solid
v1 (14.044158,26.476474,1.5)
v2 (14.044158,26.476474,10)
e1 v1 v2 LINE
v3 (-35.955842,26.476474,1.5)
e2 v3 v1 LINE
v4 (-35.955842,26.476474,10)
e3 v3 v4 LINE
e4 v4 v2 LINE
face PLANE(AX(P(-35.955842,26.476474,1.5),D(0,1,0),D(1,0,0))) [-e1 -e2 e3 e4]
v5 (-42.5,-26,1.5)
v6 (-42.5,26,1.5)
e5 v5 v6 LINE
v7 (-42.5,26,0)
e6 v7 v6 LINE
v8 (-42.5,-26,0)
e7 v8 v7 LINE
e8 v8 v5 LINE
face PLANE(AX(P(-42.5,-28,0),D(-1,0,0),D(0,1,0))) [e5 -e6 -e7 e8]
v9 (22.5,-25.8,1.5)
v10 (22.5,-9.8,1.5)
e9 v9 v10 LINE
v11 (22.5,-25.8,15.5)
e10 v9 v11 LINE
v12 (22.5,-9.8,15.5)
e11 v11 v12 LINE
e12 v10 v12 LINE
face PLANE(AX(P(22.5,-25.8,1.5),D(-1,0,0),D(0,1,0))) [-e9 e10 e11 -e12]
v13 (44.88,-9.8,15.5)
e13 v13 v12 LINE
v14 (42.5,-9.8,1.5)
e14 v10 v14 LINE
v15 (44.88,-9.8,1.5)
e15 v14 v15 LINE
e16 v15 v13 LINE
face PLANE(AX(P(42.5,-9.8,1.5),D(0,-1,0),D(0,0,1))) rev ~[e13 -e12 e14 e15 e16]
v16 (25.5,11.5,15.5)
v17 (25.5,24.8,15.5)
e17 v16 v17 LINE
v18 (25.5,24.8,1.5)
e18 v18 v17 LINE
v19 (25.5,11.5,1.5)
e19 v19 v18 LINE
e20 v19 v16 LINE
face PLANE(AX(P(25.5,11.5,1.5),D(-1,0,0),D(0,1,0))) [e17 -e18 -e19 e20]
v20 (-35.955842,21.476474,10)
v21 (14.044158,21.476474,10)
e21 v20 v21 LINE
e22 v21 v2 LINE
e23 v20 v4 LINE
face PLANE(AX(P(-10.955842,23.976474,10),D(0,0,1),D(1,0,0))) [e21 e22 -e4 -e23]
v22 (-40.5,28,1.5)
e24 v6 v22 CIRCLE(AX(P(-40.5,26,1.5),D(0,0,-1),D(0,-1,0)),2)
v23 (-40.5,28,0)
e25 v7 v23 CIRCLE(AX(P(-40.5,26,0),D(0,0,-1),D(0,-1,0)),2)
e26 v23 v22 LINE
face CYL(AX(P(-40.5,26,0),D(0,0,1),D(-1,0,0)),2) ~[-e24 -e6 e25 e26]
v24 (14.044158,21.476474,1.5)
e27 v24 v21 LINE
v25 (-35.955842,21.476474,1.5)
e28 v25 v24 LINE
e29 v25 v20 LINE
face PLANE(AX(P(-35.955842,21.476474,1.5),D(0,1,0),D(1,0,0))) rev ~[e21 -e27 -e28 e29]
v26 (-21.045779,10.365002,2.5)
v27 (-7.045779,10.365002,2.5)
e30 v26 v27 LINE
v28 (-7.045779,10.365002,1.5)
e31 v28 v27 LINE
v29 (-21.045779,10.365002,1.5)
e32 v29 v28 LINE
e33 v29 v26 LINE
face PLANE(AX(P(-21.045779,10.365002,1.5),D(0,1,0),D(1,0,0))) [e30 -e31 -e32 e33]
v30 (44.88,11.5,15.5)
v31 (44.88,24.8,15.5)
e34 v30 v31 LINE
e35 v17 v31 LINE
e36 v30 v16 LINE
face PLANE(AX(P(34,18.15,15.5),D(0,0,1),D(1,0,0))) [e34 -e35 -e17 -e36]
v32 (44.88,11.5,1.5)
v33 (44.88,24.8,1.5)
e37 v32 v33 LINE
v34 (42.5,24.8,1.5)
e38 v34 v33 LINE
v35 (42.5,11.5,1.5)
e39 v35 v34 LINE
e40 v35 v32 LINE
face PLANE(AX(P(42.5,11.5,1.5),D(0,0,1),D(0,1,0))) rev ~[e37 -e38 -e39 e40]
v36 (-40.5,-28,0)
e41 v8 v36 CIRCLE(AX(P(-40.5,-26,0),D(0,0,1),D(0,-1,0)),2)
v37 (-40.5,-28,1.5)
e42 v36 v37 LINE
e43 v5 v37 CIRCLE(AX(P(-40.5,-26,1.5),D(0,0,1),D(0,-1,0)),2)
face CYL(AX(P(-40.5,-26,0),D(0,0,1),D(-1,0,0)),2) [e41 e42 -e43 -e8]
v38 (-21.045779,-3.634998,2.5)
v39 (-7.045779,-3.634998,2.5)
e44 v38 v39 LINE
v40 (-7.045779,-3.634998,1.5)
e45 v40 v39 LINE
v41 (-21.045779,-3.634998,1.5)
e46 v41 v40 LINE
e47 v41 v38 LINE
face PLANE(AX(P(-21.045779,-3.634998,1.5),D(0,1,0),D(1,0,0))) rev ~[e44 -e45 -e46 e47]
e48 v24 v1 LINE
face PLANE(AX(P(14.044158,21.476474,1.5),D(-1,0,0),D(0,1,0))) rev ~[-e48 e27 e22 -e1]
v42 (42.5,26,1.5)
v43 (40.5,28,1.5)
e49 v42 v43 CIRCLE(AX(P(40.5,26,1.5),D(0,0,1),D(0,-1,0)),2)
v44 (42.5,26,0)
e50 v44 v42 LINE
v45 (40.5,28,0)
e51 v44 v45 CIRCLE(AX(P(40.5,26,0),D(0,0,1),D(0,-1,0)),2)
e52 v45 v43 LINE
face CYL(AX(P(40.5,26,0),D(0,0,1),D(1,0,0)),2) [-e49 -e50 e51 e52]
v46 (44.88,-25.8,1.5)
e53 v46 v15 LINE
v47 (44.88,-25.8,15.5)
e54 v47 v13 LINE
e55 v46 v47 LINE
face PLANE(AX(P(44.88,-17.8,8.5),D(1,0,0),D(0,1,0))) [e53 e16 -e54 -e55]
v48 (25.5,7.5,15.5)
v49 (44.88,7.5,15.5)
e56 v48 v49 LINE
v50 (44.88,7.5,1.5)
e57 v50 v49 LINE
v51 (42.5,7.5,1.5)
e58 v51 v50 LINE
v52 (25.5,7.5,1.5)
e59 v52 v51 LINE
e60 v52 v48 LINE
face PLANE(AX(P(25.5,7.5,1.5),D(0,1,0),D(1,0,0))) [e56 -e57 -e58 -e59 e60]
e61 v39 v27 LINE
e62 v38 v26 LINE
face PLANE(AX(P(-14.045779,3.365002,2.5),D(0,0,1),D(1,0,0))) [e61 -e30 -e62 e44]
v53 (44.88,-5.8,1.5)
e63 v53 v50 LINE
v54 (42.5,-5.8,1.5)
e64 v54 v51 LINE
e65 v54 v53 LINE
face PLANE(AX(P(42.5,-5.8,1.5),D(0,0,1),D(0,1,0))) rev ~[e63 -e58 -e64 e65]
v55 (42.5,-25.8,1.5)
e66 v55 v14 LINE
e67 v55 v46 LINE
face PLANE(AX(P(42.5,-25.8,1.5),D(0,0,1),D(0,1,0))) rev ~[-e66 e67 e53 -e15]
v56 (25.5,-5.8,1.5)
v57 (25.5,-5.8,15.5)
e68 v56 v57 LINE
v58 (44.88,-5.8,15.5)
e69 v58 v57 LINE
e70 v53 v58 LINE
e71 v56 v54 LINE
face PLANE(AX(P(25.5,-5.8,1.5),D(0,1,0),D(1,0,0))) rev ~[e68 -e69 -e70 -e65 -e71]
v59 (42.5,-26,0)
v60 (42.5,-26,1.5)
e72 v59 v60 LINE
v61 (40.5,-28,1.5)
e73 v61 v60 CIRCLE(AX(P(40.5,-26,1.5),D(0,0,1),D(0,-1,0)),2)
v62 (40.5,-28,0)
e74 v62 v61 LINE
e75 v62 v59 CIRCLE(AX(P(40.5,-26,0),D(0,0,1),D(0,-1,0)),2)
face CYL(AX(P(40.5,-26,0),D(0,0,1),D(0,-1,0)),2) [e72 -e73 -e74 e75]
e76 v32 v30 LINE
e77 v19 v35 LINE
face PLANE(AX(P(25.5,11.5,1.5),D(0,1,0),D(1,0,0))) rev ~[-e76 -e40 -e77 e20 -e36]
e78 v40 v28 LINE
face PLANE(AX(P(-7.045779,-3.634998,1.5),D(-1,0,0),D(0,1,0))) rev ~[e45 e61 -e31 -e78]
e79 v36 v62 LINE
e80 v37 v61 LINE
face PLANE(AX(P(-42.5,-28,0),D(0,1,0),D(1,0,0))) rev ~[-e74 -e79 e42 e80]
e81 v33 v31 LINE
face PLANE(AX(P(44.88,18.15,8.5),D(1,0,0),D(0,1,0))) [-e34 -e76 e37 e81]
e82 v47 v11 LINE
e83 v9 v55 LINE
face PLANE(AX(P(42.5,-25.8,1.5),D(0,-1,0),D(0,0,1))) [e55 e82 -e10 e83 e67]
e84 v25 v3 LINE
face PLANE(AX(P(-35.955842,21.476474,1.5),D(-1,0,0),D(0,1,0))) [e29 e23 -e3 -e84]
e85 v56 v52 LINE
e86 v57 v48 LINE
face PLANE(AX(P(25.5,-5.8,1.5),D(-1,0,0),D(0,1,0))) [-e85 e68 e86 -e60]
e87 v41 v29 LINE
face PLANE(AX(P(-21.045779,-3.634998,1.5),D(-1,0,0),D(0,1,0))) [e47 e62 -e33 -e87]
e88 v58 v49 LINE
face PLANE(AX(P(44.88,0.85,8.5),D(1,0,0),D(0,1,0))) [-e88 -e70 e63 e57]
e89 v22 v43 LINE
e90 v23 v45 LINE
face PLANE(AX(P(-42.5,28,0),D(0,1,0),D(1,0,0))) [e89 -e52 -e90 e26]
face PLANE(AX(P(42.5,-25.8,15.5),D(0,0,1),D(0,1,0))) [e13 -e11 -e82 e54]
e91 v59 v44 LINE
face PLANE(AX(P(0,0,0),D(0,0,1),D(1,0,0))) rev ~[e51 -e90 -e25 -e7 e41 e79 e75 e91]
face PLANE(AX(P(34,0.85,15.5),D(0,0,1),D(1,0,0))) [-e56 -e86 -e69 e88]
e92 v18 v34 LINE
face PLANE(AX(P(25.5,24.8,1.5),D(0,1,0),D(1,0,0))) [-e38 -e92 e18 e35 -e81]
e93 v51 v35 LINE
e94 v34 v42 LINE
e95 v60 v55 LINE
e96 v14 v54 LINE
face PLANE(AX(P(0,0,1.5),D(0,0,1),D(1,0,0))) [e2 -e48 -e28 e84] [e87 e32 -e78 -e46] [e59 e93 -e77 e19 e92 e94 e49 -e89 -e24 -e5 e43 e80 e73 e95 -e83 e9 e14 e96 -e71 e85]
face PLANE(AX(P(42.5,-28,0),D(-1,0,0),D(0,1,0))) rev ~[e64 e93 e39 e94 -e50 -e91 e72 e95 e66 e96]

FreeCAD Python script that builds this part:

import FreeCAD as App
import Part
import Sketcher
from FreeCAD import Vector
Q = App.Units.Quantity


def edges_at(feature, points):
    """Names of the edges that pass closest to the given points."""
    edges = feature.Shape.Edges
    near = lambda p: min(range(len(edges)), key=lambda i: edges[i].distToShape(Part.Vertex(*p))[0])
    return sorted({f"Edge{near(p) + 1}" for p in points})

doc = App.newDocument("Part")
params = doc.addObject("Spreadsheet::Sheet", "Params")
for row, (alias, value) in enumerate([
    ("sketch1_width", "85 mm"),
    ("sketch1_height", "56 mm"),
    ("pad1_length", "1.5 mm"),
    ("fillet_radius", "2 mm"),
    ("sketch2_width", "50 mm"),
    ("sketch2_height", "5 mm"),
    ("pad2_length", "8.5 mm"),
    ("sketch3_width", "17 mm"),
    ("sketch3_width2", "20 mm"),
    ("sketch3_height", "16 mm"),
    ("sketch3_height2", "13.3 mm"),
    ("pad3_length", "14 mm"),
    ("sketch4_width", "16 mm"),
    ("sketch4_height", "14 mm"),
    ("sketch4_width2", "13.3 mm"),
    ("pad4_length", "2.38 mm"),
    ("sketch5_width", "14 mm"),
    ("pad5_length", "1 mm"),
], start=1):
    params.set(f"A{row}", alias)
    params.set(f"B{row}", "=" + value)
    params.setAlias(f"B{row}", alias)

body = doc.addObject("PartDesign::Body", "Body")

# Sketch on XY plane
sketch1 = body.newObject("Sketcher::SketchObject", "Sketch")
sketch1.AttachmentSupport = (doc.getObject("XY_Plane"), [""])
sketch1.MapMode = "FlatFace"
sketch1.addGeometry(Part.LineSegment(Vector(-42, 28, 0), Vector(-42, -28, 0)), False)
sketch1.addGeometry(Part.LineSegment(Vector(-42, -28, 0), Vector(42, -28, 0)), False)
sketch1.addGeometry(Part.LineSegment(Vector(42, -28, 0), Vector(42, 28, 0)), False)
sketch1.addGeometry(Part.LineSegment(Vector(42, 28, 0), Vector(-42, 28, 0)), False)
sketch1.addConstraint(Sketcher.Constraint("Coincident", 0, 2, 1, 1))
sketch1.addConstraint(Sketcher.Constraint("Coincident", 1, 2, 2, 1))
sketch1.addConstraint(Sketcher.Constraint("Coincident", 2, 2, 3, 1))
sketch1.addConstraint(Sketcher.Constraint("Coincident", 3, 2, 0, 1))
sketch1.addConstraint(Sketcher.Constraint("Vertical", 0))
sketch1.addConstraint(Sketcher.Constraint("Horizontal", 1))
sketch1.addConstraint(Sketcher.Constraint("Vertical", 2))
sketch1.addConstraint(Sketcher.Constraint("Horizontal", 3))
sketch1.addConstraint(Sketcher.Constraint("Symmetric", 0, 2, 2, 2, -1, 1))
sketch1.addConstraint(Sketcher.Constraint("DistanceX", 1, 1, 1, 2, Q("85 mm")))
sketch1.addConstraint(Sketcher.Constraint("DistanceY", 0, 2, 0, 1, Q("56 mm")))
sketch1.setExpression("Constraints[9]", "Params.sketch1_width")
sketch1.setExpression("Constraints[10]", "Params.sketch1_height")
pad1 = body.newObject("PartDesign::Pad", "Pad")
pad1.Profile = sketch1
pad1.setExpression("Length", "Params.pad1_length")
doc.recompute()

fillet = body.newObject("PartDesign::Fillet", "Fillet")
fillet.Base = (pad1, edges_at(pad1, [
    (-42.5, -28, 0.75),
    (-42.5, 28, 0.75),
    (42.5, -28, 0.75),
    (42.5, 28, 0.75),
]))
fillet.setExpression("Radius", "Params.fillet_radius")

# Sketch on XY plane
sketch2 = body.newObject("Sketcher::SketchObject", "Sketch001")
sketch2.AttachmentSupport = (doc.getObject("XY_Plane"), [""])
sketch2.MapMode = "FlatFace"
sketch2.AttachmentOffset = App.Placement(Vector(0, 0, 1.5), App.Rotation())
sketch2.addGeometry(Part.LineSegment(Vector(-36, 26, 0), Vector(-36, 21, 0)), False)
sketch2.addGeometry(Part.LineSegment(Vector(-36, 21, 0), Vector(14, 21, 0)), False)
sketch2.addGeometry(Part.LineSegment(Vector(14, 21, 0), Vector(14, 26, 0)), False)
sketch2.addGeometry(Part.LineSegment(Vector(14, 26, 0), Vector(-36, 26, 0)), False)
sketch2.addConstraint(Sketcher.Constraint("Coincident", 0, 2, 1, 1))
sketch2.addConstraint(Sketcher.Constraint("Coincident", 1, 2, 2, 1))
sketch2.addConstraint(Sketcher.Constraint("Coincident", 2, 2, 3, 1))
sketch2.addConstraint(Sketcher.Constraint("Coincident", 3, 2, 0, 1))
sketch2.addConstraint(Sketcher.Constraint("Vertical", 0))
sketch2.addConstraint(Sketcher.Constraint("Horizontal", 1))
sketch2.addConstraint(Sketcher.Constraint("Vertical", 2))
sketch2.addConstraint(Sketcher.Constraint("Horizontal", 3))
sketch2.addConstraint(Sketcher.Constraint("DistanceX", 1, 1, 1, 2, Q("50 mm")))
sketch2.addConstraint(Sketcher.Constraint("DistanceY", 0, 2, 0, 1, Q("5 mm")))
sketch2.addConstraint(Sketcher.Constraint("DistanceX", 0, 2, -1, 1, Q("35.955842 mm")))
sketch2.addConstraint(Sketcher.Constraint("DistanceY", -1, 1, 0, 2, Q("21.476474 mm")))
sketch2.setExpression("Constraints[8]", "Params.sketch2_width")
sketch2.setExpression("Constraints[9]", "Params.sketch2_height")
pad2 = body.newObject("PartDesign::Pad", "Pad001")
pad2.Profile = sketch2
pad2.setExpression("Length", "Params.pad2_length")

# Sketch on XY plane
sketch3 = body.newObject("Sketcher::SketchObject", "Sketch002")
sketch3.AttachmentSupport = (doc.getObject("XY_Plane"), [""])
sketch3.MapMode = "FlatFace"
sketch3.AttachmentOffset = App.Placement(Vector(0, 0, 1.5), App.Rotation())
sketch3.addGeometry(Part.LineSegment(Vector(26, 25, 0), Vector(26, 12, 0)), False)
sketch3.addGeometry(Part.LineSegment(Vector(26, 12, 0), Vector(42, 12, 0)), False)
sketch3.addGeometry(Part.LineSegment(Vector(42, 12, 0), Vector(42, 25, 0)), False)
sketch3.addGeometry(Part.LineSegment(Vector(42, 25, 0), Vector(26, 25, 0)), False)
sketch3.addGeometry(Part.LineSegment(Vector(26, 8, 0), Vector(26, -6, 0)), False)
sketch3.addGeometry(Part.LineSegment(Vector(26, -6, 0), Vector(42, -6, 0)), False)
sketch3.addGeometry(Part.LineSegment(Vector(42, -6, 0), Vector(42, 8, 0)), False)
sketch3.addGeometry(Part.LineSegment(Vector(42, 8, 0), Vector(26, 8, 0)), False)
sketch3.addGeometry(Part.LineSegment(Vector(22, -10, 0), Vector(22, -26, 0)), False)
sketch3.addGeometry(Part.LineSegment(Vector(22, -26, 0), Vector(42, -26, 0)), False)
sketch3.addGeometry(Part.LineSegment(Vector(42, -26, 0), Vector(42, -10, 0)), False)
sketch3.addGeometry(Part.LineSegment(Vector(42, -10, 0), Vector(22, -10, 0)), False)
sketch3.addConstraint(Sketcher.Constraint("Coincident", 0, 2, 1, 1))
sketch3.addConstraint(Sketcher.Constraint("Coincident", 1, 2, 2, 1))
sketch3.addConstraint(Sketcher.Constraint("Coincident", 2, 2, 3, 1))
sketch3.addConstraint(Sketcher.Constraint("Coincident", 3, 2, 0, 1))
sketch3.addConstraint(Sketcher.Constraint("Coincident", 4, 2, 5, 1))
sketch3.addConstraint(Sketcher.Constraint("Coincident", 5, 2, 6, 1))
sketch3.addConstraint(Sketcher.Constraint("Coincident", 6, 2, 7, 1))
sketch3.addConstraint(Sketcher.Constraint("Coincident", 7, 2, 4, 1))
sketch3.addConstraint(Sketcher.Constraint("Coincident", 8, 2, 9, 1))
sketch3.addConstraint(Sketcher.Constraint("Coincident", 9, 2, 10, 1))
sketch3.addConstraint(Sketcher.Constraint("Coincident", 10, 2, 11, 1))
sketch3.addConstraint(Sketcher.Constraint("Coincident", 11, 2, 8, 1))
sketch3.addConstraint(Sketcher.Constraint("Vertical", 0))
sketch3.addConstraint(Sketcher.Constraint("Horizontal", 1))
sketch3.addConstraint(Sketcher.Constraint("Vertical", 2))
sketch3.addConstraint(Sketcher.Constraint("Horizontal", 3))
sketch3.addConstraint(Sketcher.Constraint("Vertical", 4))
sketch3.addConstraint(Sketcher.Constraint("Horizontal", 5))
sketch3.addConstraint(Sketcher.Constraint("Vertical", 6))
sketch3.addConstraint(Sketcher.Constraint("Horizontal", 7))
sketch3.addConstraint(Sketcher.Constraint("Vertical", 8))
sketch3.addConstraint(Sketcher.Constraint("Horizontal", 9))
sketch3.addConstraint(Sketcher.Constraint("Vertical", 10))
sketch3.addConstraint(Sketcher.Constraint("Horizontal", 11))
sketch3.addConstraint(Sketcher.Constraint("Vertical", 3, 2, 4, 2))
sketch3.addConstraint(Sketcher.Constraint("Vertical", 2, 2, 5, 2))
sketch3.addConstraint(Sketcher.Constraint("Vertical", 6, 2, 9, 2))
sketch3.addConstraint(Sketcher.Constraint("Equal", 2, 4))
sketch3.addConstraint(Sketcher.Constraint("DistanceX", 1, 1, 1, 2, Q("17 mm")))
sketch3.addConstraint(Sketcher.Constraint("DistanceX", 9, 1, 9, 2, Q("20 mm")))
sketch3.addConstraint(Sketcher.Constraint("DistanceY", 8, 2, 8, 1, Q("16 mm")))
sketch3.addConstraint(Sketcher.Constraint("DistanceY", 0, 2, 0, 1, Q("13.3 mm")))
sketch3.addConstraint(Sketcher.Constraint("DistanceY", 6, 2, 1, 2, Q("4 mm")))
sketch3.addConstraint(Sketcher.Constraint("DistanceY", 8, 2, 4, 2, Q("20 mm")))
sketch3.addConstraint(Sketcher.Constraint("DistanceX", -1, 1, 0, 2, Q("25.5 mm")))
sketch3.addConstraint(Sketcher.Constraint("DistanceY", -1, 1, 0, 2, Q("11.5 mm")))
sketch3.setExpression("Constraints[28]", "Params.sketch3_width")
sketch3.setExpression("Constraints[29]", "Params.sketch3_width2")
sketch3.setExpression("Constraints[30]", "Params.sketch3_height")
sketch3.setExpression("Constraints[31]", "Params.sketch3_height2")
pad3 = body.newObject("PartDesign::Pad", "Pad002")
pad3.Profile = sketch3
pad3.setExpression("Length", "Params.pad3_length")

# Sketch on YZ plane
sketch4 = body.newObject("Sketcher::SketchObject", "Sketch003")
sketch4.AttachmentSupport = (doc.getObject("YZ_Plane"), [""])
sketch4.MapMode = "FlatFace"
sketch4.AttachmentOffset = App.Placement(Vector(0, 0, 42.5), App.Rotation())
sketch4.addGeometry(Part.LineSegment(Vector(-26, 16, 0), Vector(-26, 2, 0)), False)
sketch4.addGeometry(Part.LineSegment(Vector(-26, 2, 0), Vector(-10, 2, 0)), False)
sketch4.addGeometry(Part.LineSegment(Vector(-10, 2, 0), Vector(-10, 16, 0)), False)
sketch4.addGeometry(Part.LineSegment(Vector(-10, 16, 0), Vector(-26, 16, 0)), False)
sketch4.addGeometry(Part.LineSegment(Vector(-6, 16, 0), Vector(-6, 2, 0)), False)
sketch4.addGeometry(Part.LineSegment(Vector(-6, 2, 0), Vector(8, 2, 0)), False)
sketch4.addGeometry(Part.LineSegment(Vector(8, 2, 0), Vector(8, 16, 0)), False)
sketch4.addGeometry(Part.LineSegment(Vector(8, 16, 0), Vector(-6, 16, 0)), False)
sketch4.addGeometry(Part.LineSegment(Vector(12, 16, 0), Vector(12, 2, 0)), False)
sketch4.addGeometry(Part.LineSegment(Vector(12, 2, 0), Vector(25, 2, 0)), False)
sketch4.addGeometry(Part.LineSegment(Vector(25, 2, 0), Vector(25, 16, 0)), False)
sketch4.addGeometry(Part.LineSegment(Vector(25, 16, 0), Vector(12, 16, 0)), False)
sketch4.addConstraint(Sketcher.Constraint("Coincident", 0, 2, 1, 1))
sketch4.addConstraint(Sketcher.Constraint("Coincident", 1, 2, 2, 1))
sketch4.addConstraint(Sketcher.Constraint("Coincident", 2, 2, 3, 1))
sketch4.addConstraint(Sketcher.Constraint("Coincident", 3, 2, 0, 1))
sketch4.addConstraint(Sketcher.Constraint("Coincident", 4, 2, 5, 1))
sketch4.addConstraint(Sketcher.Constraint("Coincident", 5, 2, 6, 1))
sketch4.addConstraint(Sketcher.Constraint("Coincident", 6, 2, 7, 1))
sketch4.addConstraint(Sketcher.Constraint("Coincident", 7, 2, 4, 1))
sketch4.addConstraint(Sketcher.Constraint("Coincident", 8, 2, 9, 1))
sketch4.addConstraint(Sketcher.Constraint("Coincident", 9, 2, 10, 1))
sketch4.addConstraint(Sketcher.Constraint("Coincident", 10, 2, 11, 1))
sketch4.addConstraint(Sketcher.Constraint("Coincident", 11, 2, 8, 1))
sketch4.addConstraint(Sketcher.Constraint("Vertical", 0))
sketch4.addConstraint(Sketcher.Constraint("Horizontal", 1))
sketch4.addConstraint(Sketcher.Constraint("Vertical", 2))
sketch4.addConstraint(Sketcher.Constraint("Horizontal", 3))
sketch4.addConstraint(Sketcher.Constraint("Vertical", 4))
sketch4.addConstraint(Sketcher.Constraint("Horizontal", 5))
sketch4.addConstraint(Sketcher.Constraint("Vertical", 6))
sketch4.addConstraint(Sketcher.Constraint("Horizontal", 7))
sketch4.addConstraint(Sketcher.Constraint("Vertical", 8))
sketch4.addConstraint(Sketcher.Constraint("Horizontal", 9))
sketch4.addConstraint(Sketcher.Constraint("Vertical", 10))
sketch4.addConstraint(Sketcher.Constraint("Horizontal", 11))
sketch4.addConstraint(Sketcher.Constraint("Horizontal", 1, 2, 4, 2))
sketch4.addConstraint(Sketcher.Constraint("Horizontal", 3, 2, 6, 2))
sketch4.addConstraint(Sketcher.Constraint("Horizontal", 5, 2, 8, 2))
sketch4.addConstraint(Sketcher.Constraint("Horizontal", 7, 2, 10, 2))
sketch4.addConstraint(Sketcher.Constraint("Equal", 7, 9))
sketch4.addConstraint(Sketcher.Constraint("DistanceX", 1, 1, 1, 2, Q("16 mm")))
sketch4.addConstraint(Sketcher.Constraint("DistanceY", 0, 2, 0, 1, Q("14 mm")))
sketch4.addConstraint(Sketcher.Constraint("DistanceX", 5, 1, 5, 2, Q("13.3 mm")))
sketch4.addConstraint(Sketcher.Constraint("DistanceX", 1, 2, 4, 2, Q("4 mm")))
sketch4.addConstraint(Sketcher.Constraint("DistanceX", 5, 2, 8, 2, Q("4 mm")))
sketch4.addConstraint(Sketcher.Constraint("DistanceX", 0, 2, -1, 1, Q("25.8 mm")))
sketch4.addConstraint(Sketcher.Constraint("DistanceY", -1, 1, 0, 2, Q("1.5 mm")))
sketch4.setExpression("Constraints[29]", "Params.sketch4_width")
sketch4.setExpression("Constraints[30]", "Params.sketch4_height")
sketch4.setExpression("Constraints[31]", "Params.sketch4_width2")
pad4 = body.newObject("PartDesign::Pad", "Pad003")
pad4.Profile = sketch4
pad4.setExpression("Length", "Params.pad4_length")

# Sketch on XY plane
sketch5 = body.newObject("Sketcher::SketchObject", "Sketch004")
sketch5.AttachmentSupport = (doc.getObject("XY_Plane"), [""])
sketch5.MapMode = "FlatFace"
sketch5.AttachmentOffset = App.Placement(Vector(0, 0, 1.5), App.Rotation())
sketch5.addGeometry(Part.LineSegment(Vector(-21, 10, 0), Vector(-21, -4, 0)), False)
sketch5.addGeometry(Part.LineSegment(Vector(-21, -4, 0), Vector(-7, -4, 0)), False)
sketch5.addGeometry(Part.LineSegment(Vector(-7, -4, 0), Vector(-7, 10, 0)), False)
sketch5.addGeometry(Part.LineSegment(Vector(-7, 10, 0), Vector(-21, 10, 0)), False)
sketch5.addConstraint(Sketcher.Constraint("Coincident", 0, 2, 1, 1))
sketch5.addConstraint(Sketcher.Constraint("Coincident", 1, 2, 2, 1))
sketch5.addConstraint(Sketcher.Constraint("Coincident", 2, 2, 3, 1))
sketch5.addConstraint(Sketcher.Constraint("Coincident", 3, 2, 0, 1))
sketch5.addConstraint(Sketcher.Constraint("Vertical", 0))
sketch5.addConstraint(Sketcher.Constraint("Horizontal", 1))
sketch5.addConstraint(Sketcher.Constraint("Vertical", 2))
sketch5.addConstraint(Sketcher.Constraint("Horizontal", 3))
sketch5.addConstraint(Sketcher.Constraint("Equal", 3, 0))
sketch5.addConstraint(Sketcher.Constraint("DistanceX", 1, 1, 1, 2, Q("14 mm")))
sketch5.addConstraint(Sketcher.Constraint("DistanceY", 0, 2, -1, 1, Q("3.634998 mm")))
sketch5.addConstraint(Sketcher.Constraint("DistanceX", 0, 2, -1, 1, Q("21.045779 mm")))
sketch5.setExpression("Constraints[9]", "Params.sketch5_width")
pad5 = body.newObject("PartDesign::Pad", "Pad004")
pad5.Profile = sketch5
pad5.setExpression("Length", "Params.pad5_length")

doc.recompute()
